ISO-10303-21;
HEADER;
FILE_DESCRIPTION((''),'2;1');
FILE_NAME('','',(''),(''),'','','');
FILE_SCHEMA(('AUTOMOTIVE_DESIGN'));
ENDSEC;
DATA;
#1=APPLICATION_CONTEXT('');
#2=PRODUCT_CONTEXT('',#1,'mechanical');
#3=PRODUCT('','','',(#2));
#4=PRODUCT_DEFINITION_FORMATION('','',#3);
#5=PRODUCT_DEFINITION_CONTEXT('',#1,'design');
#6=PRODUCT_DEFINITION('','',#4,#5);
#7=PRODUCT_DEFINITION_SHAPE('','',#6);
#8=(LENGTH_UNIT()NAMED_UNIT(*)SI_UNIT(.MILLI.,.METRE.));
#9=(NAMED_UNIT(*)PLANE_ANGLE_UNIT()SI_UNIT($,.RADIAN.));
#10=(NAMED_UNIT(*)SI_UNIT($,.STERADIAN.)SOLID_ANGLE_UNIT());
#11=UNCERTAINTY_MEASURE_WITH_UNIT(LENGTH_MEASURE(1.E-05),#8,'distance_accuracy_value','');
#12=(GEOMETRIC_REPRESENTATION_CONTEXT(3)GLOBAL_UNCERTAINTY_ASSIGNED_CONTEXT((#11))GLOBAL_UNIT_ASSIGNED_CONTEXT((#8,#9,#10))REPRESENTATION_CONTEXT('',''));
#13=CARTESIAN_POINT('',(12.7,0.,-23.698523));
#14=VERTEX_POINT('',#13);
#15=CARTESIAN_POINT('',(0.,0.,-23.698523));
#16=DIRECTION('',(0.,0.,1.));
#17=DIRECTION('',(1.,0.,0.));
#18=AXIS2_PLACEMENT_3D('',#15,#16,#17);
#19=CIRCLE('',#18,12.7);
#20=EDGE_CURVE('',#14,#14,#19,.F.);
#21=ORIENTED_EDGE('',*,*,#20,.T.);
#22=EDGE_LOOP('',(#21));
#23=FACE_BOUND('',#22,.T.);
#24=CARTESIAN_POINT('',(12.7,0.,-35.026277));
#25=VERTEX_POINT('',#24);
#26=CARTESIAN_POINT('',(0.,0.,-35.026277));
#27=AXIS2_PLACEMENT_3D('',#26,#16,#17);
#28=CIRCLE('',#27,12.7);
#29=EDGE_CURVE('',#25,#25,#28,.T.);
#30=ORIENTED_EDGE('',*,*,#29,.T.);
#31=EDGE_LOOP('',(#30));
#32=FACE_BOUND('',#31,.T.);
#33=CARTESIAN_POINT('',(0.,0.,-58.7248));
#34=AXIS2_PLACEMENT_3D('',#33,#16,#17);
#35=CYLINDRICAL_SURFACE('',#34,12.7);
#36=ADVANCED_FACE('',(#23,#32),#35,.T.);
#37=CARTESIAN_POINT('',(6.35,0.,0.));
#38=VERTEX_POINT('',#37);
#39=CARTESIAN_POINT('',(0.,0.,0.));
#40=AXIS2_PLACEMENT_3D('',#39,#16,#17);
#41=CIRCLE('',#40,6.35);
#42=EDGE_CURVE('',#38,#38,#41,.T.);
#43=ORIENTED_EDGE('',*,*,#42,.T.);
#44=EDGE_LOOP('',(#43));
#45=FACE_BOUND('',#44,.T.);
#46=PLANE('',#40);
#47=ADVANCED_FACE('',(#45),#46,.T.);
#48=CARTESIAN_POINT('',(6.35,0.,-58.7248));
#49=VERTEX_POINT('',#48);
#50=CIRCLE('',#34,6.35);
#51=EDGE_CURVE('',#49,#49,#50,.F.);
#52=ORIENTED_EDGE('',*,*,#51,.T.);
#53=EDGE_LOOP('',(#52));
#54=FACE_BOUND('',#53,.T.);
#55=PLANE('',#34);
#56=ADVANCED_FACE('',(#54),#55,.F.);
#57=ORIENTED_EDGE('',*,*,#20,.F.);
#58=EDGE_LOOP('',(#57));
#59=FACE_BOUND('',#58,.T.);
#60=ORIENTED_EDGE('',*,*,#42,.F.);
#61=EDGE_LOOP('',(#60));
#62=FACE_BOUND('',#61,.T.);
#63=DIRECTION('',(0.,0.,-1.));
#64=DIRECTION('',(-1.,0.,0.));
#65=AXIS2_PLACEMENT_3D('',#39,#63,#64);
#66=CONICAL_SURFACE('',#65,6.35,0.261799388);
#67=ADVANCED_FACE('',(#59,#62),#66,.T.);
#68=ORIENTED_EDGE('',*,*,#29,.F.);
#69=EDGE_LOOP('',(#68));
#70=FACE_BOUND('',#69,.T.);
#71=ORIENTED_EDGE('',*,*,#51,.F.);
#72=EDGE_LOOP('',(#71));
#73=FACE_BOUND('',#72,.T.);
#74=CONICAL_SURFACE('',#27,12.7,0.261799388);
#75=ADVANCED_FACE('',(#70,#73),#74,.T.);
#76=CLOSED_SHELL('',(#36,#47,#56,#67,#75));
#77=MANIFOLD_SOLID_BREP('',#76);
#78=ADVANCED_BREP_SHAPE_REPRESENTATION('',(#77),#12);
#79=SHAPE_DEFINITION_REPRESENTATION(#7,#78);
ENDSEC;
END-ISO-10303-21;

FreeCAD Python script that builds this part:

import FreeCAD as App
import Part
import Sketcher
Q = App.Units.Quantity


def edges_at(feature, points):
    """Names of the edges that pass closest to the given points."""
    edges = feature.Shape.Edges
    near = lambda p: min(range(len(edges)), key=lambda i: edges[i].distToShape(Part.Vertex(*p))[0])
    return sorted({f"Edge{near(p) + 1}" for p in points})

doc = App.newDocument("Part")
params = doc.addObject("Spreadsheet::Sheet", "Params")
for row, (alias, value) in enumerate([
    ("sketch1_diameter", "1 in"),
    ("pad1_length", "2.312 in"),
    ("chamfer_size", "0.25 in"),
    ("chamfer_size2", "23.698523 mm"),
    ("chamfer2_size", "0.25 in"),
    ("chamfer2_size2", "23.698523 mm"),
], start=1):
    params.set(f"A{row}", alias)
    params.set(f"B{row}", "=" + value)
    params.setAlias(f"B{row}", alias)

body = doc.addObject("PartDesign::Body", "Body")

sketch1 = body.newObject("Sketcher::SketchObject", "Sketch")
sketch1.AttachmentSupport = (doc.getObject("XY_Plane"), [""])
sketch1.MapMode = "FlatFace"
sketch1.addGeometry(Part.Circle(App.Vector(0, 0, 0), App.Vector(0, 0, 1), 13), False)
sketch1.addConstraint(Sketcher.Constraint("Coincident", 0, 3, -1, 1))
sketch1.addConstraint(Sketcher.Constraint("Diameter", 0, Q("1 in")))
sketch1.setExpression("Constraints[1]", "Params.sketch1_diameter")
pad1 = body.newObject("PartDesign::Pad", "Pad")
pad1.Profile = sketch1
pad1.setExpression("Length", "Params.pad1_length")
pad1.Reversed = True
doc.recompute()

chamfer = body.newObject("PartDesign::Chamfer", "Chamfer")
chamfer.Base = (pad1, edges_at(pad1, [(-12.7, 0, -58.725)]))
chamfer.ChamferType = "Two distances"
chamfer.setExpression("Size", "Params.chamfer_size")
chamfer.setExpression("Size2", "Params.chamfer_size2")
chamfer.FlipDirection = True
doc.recompute()

chamfer2 = body.newObject("PartDesign::Chamfer", "Chamfer001")
chamfer2.Base = (chamfer, edges_at(chamfer, [(-12.7, 0, 0)]))
chamfer2.ChamferType = "Two distances"
chamfer2.setExpression("Size", "Params.chamfer2_size")
chamfer2.setExpression("Size2", "Params.chamfer2_size2")
chamfer2.FlipDirection = True

doc.recompute()
